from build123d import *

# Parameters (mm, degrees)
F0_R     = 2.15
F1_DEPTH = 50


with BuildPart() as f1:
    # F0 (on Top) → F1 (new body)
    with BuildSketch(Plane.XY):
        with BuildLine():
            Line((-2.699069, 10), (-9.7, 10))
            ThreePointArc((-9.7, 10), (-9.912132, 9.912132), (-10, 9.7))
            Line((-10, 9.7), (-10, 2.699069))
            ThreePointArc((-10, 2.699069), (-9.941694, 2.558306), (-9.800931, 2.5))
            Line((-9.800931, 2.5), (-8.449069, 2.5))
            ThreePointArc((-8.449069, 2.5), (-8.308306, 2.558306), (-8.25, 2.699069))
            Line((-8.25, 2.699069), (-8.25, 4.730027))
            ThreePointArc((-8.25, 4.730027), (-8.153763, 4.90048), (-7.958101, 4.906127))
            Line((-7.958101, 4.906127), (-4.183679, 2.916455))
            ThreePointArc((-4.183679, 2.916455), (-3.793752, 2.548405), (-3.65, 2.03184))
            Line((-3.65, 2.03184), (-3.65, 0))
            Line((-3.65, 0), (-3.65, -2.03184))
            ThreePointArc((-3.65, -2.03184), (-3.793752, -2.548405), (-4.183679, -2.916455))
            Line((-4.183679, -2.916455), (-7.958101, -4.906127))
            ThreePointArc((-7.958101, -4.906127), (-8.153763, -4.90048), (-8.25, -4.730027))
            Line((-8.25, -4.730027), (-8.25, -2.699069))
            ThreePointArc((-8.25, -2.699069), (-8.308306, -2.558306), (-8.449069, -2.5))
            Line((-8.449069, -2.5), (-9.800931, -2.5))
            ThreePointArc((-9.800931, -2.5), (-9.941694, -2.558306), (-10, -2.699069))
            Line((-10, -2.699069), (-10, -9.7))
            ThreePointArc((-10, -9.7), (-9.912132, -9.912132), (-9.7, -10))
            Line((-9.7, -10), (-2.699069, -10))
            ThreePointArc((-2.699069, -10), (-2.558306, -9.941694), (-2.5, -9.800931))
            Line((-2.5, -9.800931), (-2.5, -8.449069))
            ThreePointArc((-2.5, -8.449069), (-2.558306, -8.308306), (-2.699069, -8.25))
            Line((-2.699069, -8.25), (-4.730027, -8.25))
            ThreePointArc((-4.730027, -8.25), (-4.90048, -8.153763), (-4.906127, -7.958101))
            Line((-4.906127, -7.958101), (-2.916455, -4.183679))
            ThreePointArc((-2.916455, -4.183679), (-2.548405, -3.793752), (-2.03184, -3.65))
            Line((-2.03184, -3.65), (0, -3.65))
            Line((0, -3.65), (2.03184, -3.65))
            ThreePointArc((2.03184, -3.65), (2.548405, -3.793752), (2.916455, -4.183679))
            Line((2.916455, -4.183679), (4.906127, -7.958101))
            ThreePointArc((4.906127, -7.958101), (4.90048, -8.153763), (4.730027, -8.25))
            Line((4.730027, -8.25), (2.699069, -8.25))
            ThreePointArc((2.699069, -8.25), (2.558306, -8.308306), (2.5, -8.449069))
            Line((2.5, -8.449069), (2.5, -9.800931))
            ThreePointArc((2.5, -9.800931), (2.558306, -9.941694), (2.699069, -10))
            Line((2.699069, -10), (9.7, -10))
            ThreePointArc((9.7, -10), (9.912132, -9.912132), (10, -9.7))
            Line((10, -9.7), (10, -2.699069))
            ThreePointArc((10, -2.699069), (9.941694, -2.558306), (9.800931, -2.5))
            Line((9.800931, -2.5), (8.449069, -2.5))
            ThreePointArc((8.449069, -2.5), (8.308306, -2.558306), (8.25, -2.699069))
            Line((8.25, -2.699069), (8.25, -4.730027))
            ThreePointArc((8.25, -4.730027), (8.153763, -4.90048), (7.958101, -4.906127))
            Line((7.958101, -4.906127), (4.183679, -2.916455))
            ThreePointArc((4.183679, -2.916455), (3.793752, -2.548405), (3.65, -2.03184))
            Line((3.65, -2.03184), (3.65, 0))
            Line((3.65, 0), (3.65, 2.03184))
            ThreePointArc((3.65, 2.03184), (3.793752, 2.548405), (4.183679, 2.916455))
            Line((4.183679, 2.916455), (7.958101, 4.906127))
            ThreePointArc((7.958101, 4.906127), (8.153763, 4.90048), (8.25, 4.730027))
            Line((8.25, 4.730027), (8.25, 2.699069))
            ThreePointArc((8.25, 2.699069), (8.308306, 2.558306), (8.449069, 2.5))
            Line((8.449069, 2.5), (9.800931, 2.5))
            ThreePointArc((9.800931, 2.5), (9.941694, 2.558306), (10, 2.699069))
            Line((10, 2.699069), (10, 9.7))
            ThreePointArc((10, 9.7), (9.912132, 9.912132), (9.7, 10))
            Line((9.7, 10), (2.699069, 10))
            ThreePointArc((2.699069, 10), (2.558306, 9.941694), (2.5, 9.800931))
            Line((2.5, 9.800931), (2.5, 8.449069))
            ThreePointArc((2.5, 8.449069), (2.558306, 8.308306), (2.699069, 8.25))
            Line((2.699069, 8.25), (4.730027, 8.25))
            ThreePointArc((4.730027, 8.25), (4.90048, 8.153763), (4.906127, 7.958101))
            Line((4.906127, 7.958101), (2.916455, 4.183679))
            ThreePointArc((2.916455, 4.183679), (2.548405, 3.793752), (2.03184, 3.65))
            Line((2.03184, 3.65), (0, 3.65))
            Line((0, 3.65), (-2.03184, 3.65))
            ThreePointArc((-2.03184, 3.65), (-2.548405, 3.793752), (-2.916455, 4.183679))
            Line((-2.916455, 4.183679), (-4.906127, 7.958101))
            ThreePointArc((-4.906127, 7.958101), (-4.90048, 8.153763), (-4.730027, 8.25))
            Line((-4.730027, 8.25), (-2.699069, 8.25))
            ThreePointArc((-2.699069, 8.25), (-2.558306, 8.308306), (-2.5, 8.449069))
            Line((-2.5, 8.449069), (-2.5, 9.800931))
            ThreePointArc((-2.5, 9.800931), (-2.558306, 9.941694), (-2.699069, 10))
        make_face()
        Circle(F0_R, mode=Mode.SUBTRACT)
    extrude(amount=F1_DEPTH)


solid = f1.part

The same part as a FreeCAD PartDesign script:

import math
import FreeCAD as App
import Part
import Sketcher

V = App.Vector

doc = App.newDocument("Part")
body = doc.addObject("PartDesign::Body", "Body")

sketch1 = body.newObject("Sketcher::SketchObject", "Sketch")
sketch1.AttachmentSupport = (doc.getObject("XY_Plane"), [""])
sketch1.MapMode = "FlatFace"
sketch1.addGeometry([
    Part.LineSegment(V(-2.7, 10, 0), V(-9.7, 10, 0)),
    Part.ArcOfCircle(Part.Circle(V(-9.7, 9.7, 0), V(0, 0, 1), 0.3), math.radians(90), math.radians(180)),
    Part.LineSegment(V(-10, 9.7, 0), V(-10, 2.7, 0)),
    Part.ArcOfCircle(Part.Circle(V(-9.8, 2.7, 0), V(0, 0, 1), 0.2), math.radians(-180), math.radians(-90)),
    Part.LineSegment(V(-9.8, 2.5, 0), V(-8.45, 2.5, 0)),
    Part.ArcOfCircle(Part.Circle(V(-8.45, 2.7, 0), V(0, 0, 1), 0.2), math.radians(-90), math.radians(0)),
    Part.LineSegment(V(-8.25, 2.7, 0), V(-8.25, 4.73, 0)),
    Part.ArcOfCircle(Part.Circle(V(-8.05, 4.73, 0), V(0, 0, 1), 0.2), math.radians(62), math.radians(180)),
    Part.LineSegment(V(-7.96, 4.91, 0), V(-4.18, 2.92, 0)),
    Part.ArcOfCircle(Part.Circle(V(-4.65, 2.03, 0), V(0, 0, 1), 1), math.radians(0), math.radians(62)),
    Part.LineSegment(V(-3.65, 2.03, 0), V(-3.65, -2.03, 0)),
    Part.ArcOfCircle(Part.Circle(V(-4.65, -2.03, 0), V(0, 0, 1), 1), math.radians(-62), math.radians(0)),
    Part.LineSegment(V(-4.18, -2.92, 0), V(-7.96, -4.91, 0)),
    Part.ArcOfCircle(Part.Circle(V(-8.05, -4.73, 0), V(0, 0, 1), 0.2), math.radians(180), math.radians(298)),
    Part.LineSegment(V(-8.25, -4.73, 0), V(-8.25, -2.7, 0)),
    Part.ArcOfCircle(Part.Circle(V(-8.45, -2.7, 0), V(0, 0, 1), 0.2), math.radians(0), math.radians(90)),
    Part.LineSegment(V(-8.45, -2.5, 0), V(-9.8, -2.5, 0)),
    Part.ArcOfCircle(Part.Circle(V(-9.8, -2.7, 0), V(0, 0, 1), 0.2), math.radians(90), math.radians(180)),
    Part.LineSegment(V(-10, -2.7, 0), V(-10, -9.7, 0)),
    Part.ArcOfCircle(Part.Circle(V(-9.7, -9.7, 0), V(0, 0, 1), 0.3), math.radians(-180), math.radians(-90)),
    Part.LineSegment(V(-9.7, -10, 0), V(-2.7, -10, 0)),
    Part.ArcOfCircle(Part.Circle(V(-2.7, -9.8, 0), V(0, 0, 1), 0.2), math.radians(-90), math.radians(0)),
    Part.LineSegment(V(-2.5, -9.8, 0), V(-2.5, -8.45, 0)),
    Part.ArcOfCircle(Part.Circle(V(-2.7, -8.45, 0), V(0, 0, 1), 0.2), math.radians(0), math.radians(90)),
    Part.LineSegment(V(-2.7, -8.25, 0), V(-4.73, -8.25, 0)),
    Part.ArcOfCircle(Part.Circle(V(-4.73, -8.05, 0), V(0, 0, 1), 0.2), math.radians(152), math.radians(270)),
    Part.LineSegment(V(-4.91, -7.96, 0), V(-2.92, -4.18, 0)),
    Part.ArcOfCircle(Part.Circle(V(-2.03, -4.65, 0), V(0, 0, 1), 1), math.radians(90), math.radians(152)),
    Part.LineSegment(V(-2.03, -3.65, 0), V(2.03, -3.65, 0)),
    Part.ArcOfCircle(Part.Circle(V(2.03, -4.65, 0), V(0, 0, 1), 1), math.radians(28), math.radians(90)),
    Part.LineSegment(V(2.92, -4.18, 0), V(4.91, -7.96, 0)),
    Part.ArcOfCircle(Part.Circle(V(4.73, -8.05, 0), V(0, 0, 1), 0.2), math.radians(-90), math.radians(28)),
    Part.LineSegment(V(4.73, -8.25, 0), V(2.7, -8.25, 0)),
    Part.ArcOfCircle(Part.Circle(V(2.7, -8.45, 0), V(0, 0, 1), 0.2), math.radians(90), math.radians(180)),
    Part.LineSegment(V(2.5, -8.45, 0), V(2.5, -9.8, 0)),
    Part.ArcOfCircle(Part.Circle(V(2.7, -9.8, 0), V(0, 0, 1), 0.2), math.radians(-180), math.radians(-90)),
    Part.LineSegment(V(2.7, -10, 0), V(9.7, -10, 0)),
    Part.ArcOfCircle(Part.Circle(V(9.7, -9.7, 0), V(0, 0, 1), 0.3), math.radians(-90), math.radians(0)),
    Part.LineSegment(V(10, -9.7, 0), V(10, -2.7, 0)),
    Part.ArcOfCircle(Part.Circle(V(9.8, -2.7, 0), V(0, 0, 1), 0.2), math.radians(0), math.radians(90)),
    Part.LineSegment(V(9.8, -2.5, 0), V(8.45, -2.5, 0)),
    Part.ArcOfCircle(Part.Circle(V(8.45, -2.7, 0), V(0, 0, 1), 0.2), math.radians(90), math.radians(180)),
    Part.LineSegment(V(8.25, -2.7, 0), V(8.25, -4.73, 0)),
    Part.ArcOfCircle(Part.Circle(V(8.05, -4.73, 0), V(0, 0, 1), 0.2), math.radians(-118), math.radians(0)),
    Part.LineSegment(V(7.96, -4.91, 0), V(4.18, -2.92, 0)),
    Part.ArcOfCircle(Part.Circle(V(4.65, -2.03, 0), V(0, 0, 1), 1), math.radians(180), math.radians(242)),
    Part.LineSegment(V(3.65, -2.03, 0), V(3.65, 2.03, 0)),
    Part.ArcOfCircle(Part.Circle(V(4.65, 2.03, 0), V(0, 0, 1), 1), math.radians(118), math.radians(180)),
    Part.LineSegment(V(4.18, 2.92, 0), V(7.96, 4.91, 0)),
    Part.ArcOfCircle(Part.Circle(V(8.05, 4.73, 0), V(0, 0, 1), 0.2), math.radians(0), math.radians(118)),
    Part.LineSegment(V(8.25, 4.73, 0), V(8.25, 2.7, 0)),
    Part.ArcOfCircle(Part.Circle(V(8.45, 2.7, 0), V(0, 0, 1), 0.2), math.radians(-180), math.radians(-90)),
    Part.LineSegment(V(8.45, 2.5, 0), V(9.8, 2.5, 0)),
    Part.ArcOfCircle(Part.Circle(V(9.8, 2.7, 0), V(0, 0, 1), 0.2), math.radians(-90), math.radians(0)),
    Part.LineSegment(V(10, 2.7, 0), V(10, 9.7, 0)),
    Part.ArcOfCircle(Part.Circle(V(9.7, 9.7, 0), V(0, 0, 1), 0.3), math.radians(0), math.radians(90)),
    Part.LineSegment(V(9.7, 10, 0), V(2.7, 10, 0)),
    Part.ArcOfCircle(Part.Circle(V(2.7, 9.8, 0), V(0, 0, 1), 0.2), math.radians(90), math.radians(180)),
    Part.LineSegment(V(2.5, 9.8, 0), V(2.5, 8.45, 0)),
    Part.ArcOfCircle(Part.Circle(V(2.7, 8.45, 0), V(0, 0, 1), 0.2), math.radians(-180), math.radians(-90)),
    Part.LineSegment(V(2.7, 8.25, 0), V(4.73, 8.25, 0)),
    Part.ArcOfCircle(Part.Circle(V(4.73, 8.05, 0), V(0, 0, 1), 0.2), math.radians(-28), math.radians(90)),
    Part.LineSegment(V(4.91, 7.96, 0), V(2.92, 4.18, 0)),
    Part.ArcOfCircle(Part.Circle(V(2.03, 4.65, 0), V(0, 0, 1), 1), math.radians(-90), math.radians(-28)),
    Part.LineSegment(V(2.03, 3.65, 0), V(-2.03, 3.65, 0)),
    Part.ArcOfCircle(Part.Circle(V(-2.03, 4.65, 0), V(0, 0, 1), 1), math.radians(-152), math.radians(-90)),
    Part.LineSegment(V(-2.92, 4.18, 0), V(-4.91, 7.96, 0)),
    Part.ArcOfCircle(Part.Circle(V(-4.73, 8.05, 0), V(0, 0, 1), 0.2), math.radians(90), math.radians(208)),
    Part.LineSegment(V(-4.73, 8.25, 0), V(-2.7, 8.25, 0)),
    Part.ArcOfCircle(Part.Circle(V(-2.7, 8.45, 0), V(0, 0, 1), 0.2), math.radians(-90), math.radians(0)),
    Part.LineSegment(V(-2.5, 8.45, 0), V(-2.5, 9.8, 0)),
    Part.ArcOfCircle(Part.Circle(V(-2.7, 9.8, 0), V(0, 0, 1), 0.2), math.radians(0), math.radians(90)),
    Part.Circle(V(0, 0, 0), V(0, 0, 1), 2.15),
], False)
sketch1.addConstraint([
    Sketcher.Constraint("Tangent", 0, 2, 1, 1),
    Sketcher.Constraint("Tangent", 1, 2, 2, 1),
    Sketcher.Constraint("Tangent", 2, 2, 3, 1),
    Sketcher.Constraint("Tangent", 3, 2, 4, 1),
    Sketcher.Constraint("Tangent", 4, 2, 5, 1),
    Sketcher.Constraint("Tangent", 5, 2, 6, 1),
    Sketcher.Constraint("Coincident", 6, 2, 7, 2),
    Sketcher.Constraint("Tangent", 7, 1, 8, 1),
    Sketcher.Constraint("Tangent", 8, 2, 9, 2),
    Sketcher.Constraint("Tangent", 9, 1, 10, 1),
    Sketcher.Constraint("Tangent", 10, 2, 11, 2),
    Sketcher.Constraint("Tangent", 11, 1, 12, 1),
    Sketcher.Constraint("Tangent", 12, 2, 13, 2),
    Sketcher.Constraint("Coincident", 13, 1, 14, 1),
    Sketcher.Constraint("Tangent", 14, 2, 15, 1),
    Sketcher.Constraint("Tangent", 15, 2, 16, 1),
    Sketcher.Constraint("Tangent", 16, 2, 17, 1),
    Sketcher.Constraint("Tangent", 17, 2, 18, 1),
    Sketcher.Constraint("Tangent", 18, 2, 19, 1),
    Sketcher.Constraint("Tangent", 19, 2, 20, 1),
    Sketcher.Constraint("Tangent", 20, 2, 21, 1),
    Sketcher.Constraint("Tangent", 21, 2, 22, 1),
    Sketcher.Constraint("Tangent", 22, 2, 23, 1),
    Sketcher.Constraint("Tangent", 23, 2, 24, 1),
    Sketcher.Constraint("Coincident", 24, 2, 25, 2),
    Sketcher.Constraint("Tangent", 25, 1, 26, 1),
    Sketcher.Constraint("Tangent", 26, 2, 27, 2),
    Sketcher.Constraint("Tangent", 27, 1, 28, 1),
    Sketcher.Constraint("Tangent", 28, 2, 29, 2),
    Sketcher.Constraint("Tangent", 29, 1, 30, 1),
    Sketcher.Constraint("Tangent", 30, 2, 31, 2),
    Sketcher.Constraint("Coincident", 31, 1, 32, 1),
    Sketcher.Constraint("Tangent", 32, 2, 33, 1),
    Sketcher.Constraint("Tangent", 33, 2, 34, 1),
    Sketcher.Constraint("Tangent", 34, 2, 35, 1),
    Sketcher.Constraint("Tangent", 35, 2, 36, 1),
    Sketcher.Constraint("Tangent", 36, 2, 37, 1),
    Sketcher.Constraint("Tangent", 37, 2, 38, 1),
    Sketcher.Constraint("Tangent", 38, 2, 39, 1),
    Sketcher.Constraint("Tangent", 39, 2, 40, 1),
    Sketcher.Constraint("Tangent", 40, 2, 41, 1),
    Sketcher.Constraint("Tangent", 41, 2, 42, 1),
    Sketcher.Constraint("Coincident", 42, 2, 43, 2),
    Sketcher.Constraint("Tangent", 43, 1, 44, 1),
    Sketcher.Constraint("Tangent", 44, 2, 45, 2),
    Sketcher.Constraint("Tangent", 45, 1, 46, 1),
    Sketcher.Constraint("Tangent", 46, 2, 47, 2),
    Sketcher.Constraint("Tangent", 47, 1, 48, 1),
    Sketcher.Constraint("Tangent", 48, 2, 49, 2),
    Sketcher.Constraint("Coincident", 49, 1, 50, 1),
    Sketcher.Constraint("Tangent", 50, 2, 51, 1),
    Sketcher.Constraint("Tangent", 51, 2, 52, 1),
    Sketcher.Constraint("Tangent", 52, 2, 53, 1),
    Sketcher.Constraint("Tangent", 53, 2, 54, 1),
    Sketcher.Constraint("Tangent", 54, 2, 55, 1),
    Sketcher.Constraint("Tangent", 55, 2, 56, 1),
    Sketcher.Constraint("Tangent", 56, 2, 57, 1),
    Sketcher.Constraint("Tangent", 57, 2, 58, 1),
    Sketcher.Constraint("Tangent", 58, 2, 59, 1),
    Sketcher.Constraint("Tangent", 59, 2, 60, 1),
    Sketcher.Constraint("Coincident", 60, 2, 61, 2),
    Sketcher.Constraint("Tangent", 61, 1, 62, 1),
    Sketcher.Constraint("Tangent", 62, 2, 63, 2),
    Sketcher.Constraint("Tangent", 63, 1, 64, 1),
    Sketcher.Constraint("Tangent", 64, 2, 65, 2),
    Sketcher.Constraint("Tangent", 65, 1, 66, 1),
    Sketcher.Constraint("Tangent", 66, 2, 67, 2),
    Sketcher.Constraint("Coincident", 67, 1, 68, 1),
    Sketcher.Constraint("Tangent", 68, 2, 69, 1),
    Sketcher.Constraint("Tangent", 69, 2, 70, 1),
    Sketcher.Constraint("Tangent", 70, 2, 71, 1),
    Sketcher.Constraint("Tangent", 71, 2, 0, 1),
    Sketcher.Constraint("Horizontal", 0),
    Sketcher.Constraint("Vertical", 2),
    Sketcher.Constraint("Horizontal", 4),
    Sketcher.Constraint("Vertical", 6),
    Sketcher.Constraint("Vertical", 10),
    Sketcher.Constraint("Vertical", 14),
    Sketcher.Constraint("Horizontal", 16),
    Sketcher.Constraint("Vertical", 18),
    Sketcher.Constraint("Horizontal", 20),
    Sketcher.Constraint("Vertical", 22),
    Sketcher.Constraint("Horizontal", 24),
    Sketcher.Constraint("Horizontal", 28),
    Sketcher.Constraint("Horizontal", 32),
    Sketcher.Constraint("Vertical", 34),
    Sketcher.Constraint("Horizontal", 36),
    Sketcher.Constraint("Vertical", 38),
    Sketcher.Constraint("Horizontal", 40),
    Sketcher.Constraint("Vertical", 42),
    Sketcher.Constraint("Vertical", 46),
    Sketcher.Constraint("Vertical", 50),
    Sketcher.Constraint("Horizontal", 52),
    Sketcher.Constraint("Vertical", 54),
    Sketcher.Constraint("Horizontal", 56),
    Sketcher.Constraint("Vertical", 58),
    Sketcher.Constraint("Horizontal", 60),
    Sketcher.Constraint("Horizontal", 64),
    Sketcher.Constraint("Horizontal", 68),
    Sketcher.Constraint("Vertical", 70),
    Sketcher.Constraint("Coincident", 72, 3, -1, 1),
    Sketcher.Constraint("Equal", 3, 5),
    Sketcher.Constraint("Equal", 5, 7),
    Sketcher.Constraint("Equal", 9, 11),
    Sketcher.Constraint("Equal", 7, 13),
    Sketcher.Constraint("Equal", 13, 15),
    Sketcher.Constraint("Equal", 15, 17),
    Sketcher.Constraint("Equal", 1, 19),
    Sketcher.Constraint("Equal", 17, 21),
    Sketcher.Constraint("Equal", 21, 23),
    Sketcher.Constraint("Equal", 23, 25),
    Sketcher.Constraint("Equal", 11, 27),
    Sketcher.Constraint("Equal", 27, 29),
    Sketcher.Constraint("Equal", 25, 31),
    Sketcher.Constraint("Equal", 31, 33),
    Sketcher.Constraint("Equal", 33, 35),
    Sketcher.Constraint("Equal", 19, 37),
    Sketcher.Constraint("Equal", 35, 39),
    Sketcher.Constraint("Equal", 39, 41),
    Sketcher.Constraint("Equal", 41, 43),
    Sketcher.Constraint("Equal", 29, 45),
    Sketcher.Constraint("Equal", 45, 47),
    Sketcher.Constraint("Equal", 43, 49),
    Sketcher.Constraint("Equal", 49, 51),
    Sketcher.Constraint("Equal", 51, 53),
    Sketcher.Constraint("Equal", 37, 55),
    Sketcher.Constraint("Equal", 53, 57),
    Sketcher.Constraint("Equal", 57, 59),
    Sketcher.Constraint("Equal", 59, 61),
    Sketcher.Constraint("Equal", 47, 63),
    Sketcher.Constraint("Equal", 63, 65),
    Sketcher.Constraint("Equal", 61, 67),
    Sketcher.Constraint("Equal", 67, 69),
    Sketcher.Constraint("Equal", 69, 71),
    Sketcher.Constraint("Symmetric", 1, 3, 37, 3, -1, 1),
    Sketcher.Constraint("Symmetric", 5, 3, 41, 3, -1, 1),
    Sketcher.Constraint("Symmetric", 9, 3, 45, 3, -1, 1),
    Sketcher.Constraint("Symmetric", 13, 3, 49, 3, -1, 1),
    Sketcher.Constraint("Symmetric", 17, 3, 53, 3, -1, 1),
    Sketcher.Constraint("Symmetric", 21, 3, 57, 3, -1, 1),
    Sketcher.Constraint("Symmetric", 25, 3, 61, 3, -1, 1),
    Sketcher.Constraint("Symmetric", 27, 3, 63, 3, -1, 1),
    Sketcher.Constraint("Symmetric", 31, 3, 67, 3, -1, 1),
    Sketcher.Constraint("Symmetric", 25, 3, 31, 3, -2),
    Sketcher.Constraint("Symmetric", 21, 3, 35, 3, -2),
    Sketcher.Constraint("Symmetric", 17, 3, 39, 3, -2),
    Sketcher.Constraint("Symmetric", 13, 3, 43, 3, -2),
    Sketcher.Constraint("Symmetric", 8, 2, 47, 1, -2),
    Sketcher.Constraint("Perpendicular", 8, 26),
    Sketcher.Constraint("Perpendicular", 12, 30),
    Sketcher.Constraint("Perpendicular", 30, 48),
    Sketcher.Constraint("Perpendicular", 48, 66),
    Sketcher.Constraint("Horizontal", 49, 3, 6, 2),
    Sketcher.Constraint("Horizontal", 43, 3, 13, 1),
    Sketcher.Constraint("Horizontal", 13, 1, 42, 2),
    Sketcher.Constraint("Horizontal", 6, 2, 49, 1),
    Sketcher.Constraint("Vertical", 23, 3, 69, 3),
    Sketcher.Constraint("Vertical", 67, 3, 24, 2),
    Sketcher.Constraint("Vertical", 61, 3, 31, 1),
    Sketcher.Constraint("Vertical", 31, 1, 60, 2),
    Sketcher.Constraint("Vertical", 24, 2, 67, 1),
    Sketcher.Constraint("Equal", 56, 2),
    Sketcher.Constraint("Equal", 68, 6),
    Sketcher.Constraint("Equal", 64, 10),
    Sketcher.Constraint("Equal", 52, 22),
    Sketcher.Constraint("Equal", 12, 26),
    Sketcher.Constraint("Radius", 9, 0.999998),
    Sketcher.Constraint("Diameter", 72, 4.3),
    Sketcher.Constraint("Radius", 1, 0.3),
    Sketcher.Constraint("DistanceY", -1, 1, 0, 2, 10.0),
    Sketcher.Constraint("DistanceY", -1, 1, 3, 2, 2.5),
    Sketcher.Constraint("DistanceX", 9, 3, -1, 1, 4.649998),
    Sketcher.Constraint("DistanceX", 5, 2, -1, 1, 8.25),
    Sketcher.Constraint("Radius", 3, 0.199069),
    Sketcher.Constraint("DistanceX", 28, 1, 28, 2, 4.06368),
    Sketcher.Constraint("DistanceX", 7, 1, -1, 1, 7.958101),
])
pad1 = body.newObject("PartDesign::Pad", "Pad")
pad1.Profile = sketch1
pad1.Length = 50

doc.recompute()
